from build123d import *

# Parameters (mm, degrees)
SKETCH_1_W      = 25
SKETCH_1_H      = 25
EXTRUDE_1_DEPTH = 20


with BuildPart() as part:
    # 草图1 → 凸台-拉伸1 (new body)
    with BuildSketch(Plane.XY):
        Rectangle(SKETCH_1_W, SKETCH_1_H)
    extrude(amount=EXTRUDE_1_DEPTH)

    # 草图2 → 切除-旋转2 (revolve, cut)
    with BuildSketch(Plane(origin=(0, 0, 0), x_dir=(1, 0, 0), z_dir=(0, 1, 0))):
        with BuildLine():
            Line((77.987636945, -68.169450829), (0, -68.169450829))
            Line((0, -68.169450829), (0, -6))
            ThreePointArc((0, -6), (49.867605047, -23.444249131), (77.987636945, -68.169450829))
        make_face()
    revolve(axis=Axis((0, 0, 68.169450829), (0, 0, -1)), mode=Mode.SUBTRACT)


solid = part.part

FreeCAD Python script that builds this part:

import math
import FreeCAD as App
import Part
import Sketcher

V = App.Vector


def add_polygon(sketch, points):
    """Adds a closed chain of lines whose ends are joined by coincident constraints."""
    first, n = sketch.GeometryCount, len(points)
    for a, b in zip(points, points[1:] + points[:1]):
        sketch.addGeometry(Part.LineSegment(App.Vector(*a, 0), App.Vector(*b, 0)), False)
    for i in range(n):
        sketch.addConstraint(Sketcher.Constraint("Coincident", first + i, 2, first + (i + 1) % n, 1))

doc = App.newDocument("Part")
body = doc.addObject("PartDesign::Body", "Body")

# Sketch on XY plane
sketch1 = doc.addObject("Sketcher::SketchObject", "Sketch")
body.addObject(sketch1)
sketch1.AttachmentSupport = (doc.XY_Plane, [""])
sketch1.MapMode = "FlatFace"
add_polygon(sketch1, [(-12, 12), (-12, -12), (12, -12), (12, 12)])  # lines 0-3
sketch1.addConstraint(Sketcher.Constraint("Vertical", 0))
sketch1.addConstraint(Sketcher.Constraint("Horizontal", 1))
sketch1.addConstraint(Sketcher.Constraint("Vertical", 2))
sketch1.addConstraint(Sketcher.Constraint("Horizontal", 3))
sketch1.addConstraint(Sketcher.Constraint("Symmetric", 0, 2, 2, 2, -1, 1))
sketch1.addConstraint(Sketcher.Constraint("Equal", 3, 0))
sketch1.addConstraint(Sketcher.Constraint("DistanceX", 1, 1, 1, 2, 25.0))
pad1 = doc.addObject("PartDesign::Pad", "Pad")
body.addObject(pad1)
pad1.Profile = sketch1
pad1.Length = 20

# Sketch on XZ plane
sketch2 = doc.addObject("Sketcher::SketchObject", "Sketch001")
body.addObject(sketch2)
sketch2.AttachmentSupport = (doc.XZ_Plane, [""])
sketch2.MapMode = "FlatFace"
sketch2.addGeometry(Part.LineSegment(V(0, 68, 0), V(78, 68, 0)), False)
sketch2.addGeometry(Part.ArcOfCircle(Part.Circle(V(0, 86, 0), V(0, 0, 1), 80), math.radians(-90), math.radians(-13)), False)
sketch2.addGeometry(Part.LineSegment(V(0, 6, 0), V(0, 68, 0)), False)
sketch2.addConstraint(Sketcher.Constraint("Coincident", 0, 2, 1, 2))
sketch2.addConstraint(Sketcher.Constraint("Coincident", 1, 1, 2, 1))
sketch2.addConstraint(Sketcher.Constraint("Coincident", 2, 2, 0, 1))
sketch2.addConstraint(Sketcher.Constraint("Horizontal", 0))
sketch2.addConstraint(Sketcher.Constraint("Vertical", 2))
sketch2.addConstraint(Sketcher.Constraint("PointOnObject", 1, 3, -2))
sketch2.addConstraint(Sketcher.Constraint("PointOnObject", 1, 1, -2))
sketch2.addConstraint(Sketcher.Constraint("Radius", 1, 80.0))
sketch2.addConstraint(Sketcher.Constraint("DistanceY", -1, 1, 1, 3, 86.0))
sketch2.addConstraint(Sketcher.Constraint("DistanceY", 2, 1, 2, 2, 62.169451))
groove = doc.addObject("PartDesign::Groove", "Groove")
body.addObject(groove)
groove.Profile = sketch2
groove.ReferenceAxis = (sketch2, ["V_Axis"])
groove.Angle = 360

doc.recompute()
